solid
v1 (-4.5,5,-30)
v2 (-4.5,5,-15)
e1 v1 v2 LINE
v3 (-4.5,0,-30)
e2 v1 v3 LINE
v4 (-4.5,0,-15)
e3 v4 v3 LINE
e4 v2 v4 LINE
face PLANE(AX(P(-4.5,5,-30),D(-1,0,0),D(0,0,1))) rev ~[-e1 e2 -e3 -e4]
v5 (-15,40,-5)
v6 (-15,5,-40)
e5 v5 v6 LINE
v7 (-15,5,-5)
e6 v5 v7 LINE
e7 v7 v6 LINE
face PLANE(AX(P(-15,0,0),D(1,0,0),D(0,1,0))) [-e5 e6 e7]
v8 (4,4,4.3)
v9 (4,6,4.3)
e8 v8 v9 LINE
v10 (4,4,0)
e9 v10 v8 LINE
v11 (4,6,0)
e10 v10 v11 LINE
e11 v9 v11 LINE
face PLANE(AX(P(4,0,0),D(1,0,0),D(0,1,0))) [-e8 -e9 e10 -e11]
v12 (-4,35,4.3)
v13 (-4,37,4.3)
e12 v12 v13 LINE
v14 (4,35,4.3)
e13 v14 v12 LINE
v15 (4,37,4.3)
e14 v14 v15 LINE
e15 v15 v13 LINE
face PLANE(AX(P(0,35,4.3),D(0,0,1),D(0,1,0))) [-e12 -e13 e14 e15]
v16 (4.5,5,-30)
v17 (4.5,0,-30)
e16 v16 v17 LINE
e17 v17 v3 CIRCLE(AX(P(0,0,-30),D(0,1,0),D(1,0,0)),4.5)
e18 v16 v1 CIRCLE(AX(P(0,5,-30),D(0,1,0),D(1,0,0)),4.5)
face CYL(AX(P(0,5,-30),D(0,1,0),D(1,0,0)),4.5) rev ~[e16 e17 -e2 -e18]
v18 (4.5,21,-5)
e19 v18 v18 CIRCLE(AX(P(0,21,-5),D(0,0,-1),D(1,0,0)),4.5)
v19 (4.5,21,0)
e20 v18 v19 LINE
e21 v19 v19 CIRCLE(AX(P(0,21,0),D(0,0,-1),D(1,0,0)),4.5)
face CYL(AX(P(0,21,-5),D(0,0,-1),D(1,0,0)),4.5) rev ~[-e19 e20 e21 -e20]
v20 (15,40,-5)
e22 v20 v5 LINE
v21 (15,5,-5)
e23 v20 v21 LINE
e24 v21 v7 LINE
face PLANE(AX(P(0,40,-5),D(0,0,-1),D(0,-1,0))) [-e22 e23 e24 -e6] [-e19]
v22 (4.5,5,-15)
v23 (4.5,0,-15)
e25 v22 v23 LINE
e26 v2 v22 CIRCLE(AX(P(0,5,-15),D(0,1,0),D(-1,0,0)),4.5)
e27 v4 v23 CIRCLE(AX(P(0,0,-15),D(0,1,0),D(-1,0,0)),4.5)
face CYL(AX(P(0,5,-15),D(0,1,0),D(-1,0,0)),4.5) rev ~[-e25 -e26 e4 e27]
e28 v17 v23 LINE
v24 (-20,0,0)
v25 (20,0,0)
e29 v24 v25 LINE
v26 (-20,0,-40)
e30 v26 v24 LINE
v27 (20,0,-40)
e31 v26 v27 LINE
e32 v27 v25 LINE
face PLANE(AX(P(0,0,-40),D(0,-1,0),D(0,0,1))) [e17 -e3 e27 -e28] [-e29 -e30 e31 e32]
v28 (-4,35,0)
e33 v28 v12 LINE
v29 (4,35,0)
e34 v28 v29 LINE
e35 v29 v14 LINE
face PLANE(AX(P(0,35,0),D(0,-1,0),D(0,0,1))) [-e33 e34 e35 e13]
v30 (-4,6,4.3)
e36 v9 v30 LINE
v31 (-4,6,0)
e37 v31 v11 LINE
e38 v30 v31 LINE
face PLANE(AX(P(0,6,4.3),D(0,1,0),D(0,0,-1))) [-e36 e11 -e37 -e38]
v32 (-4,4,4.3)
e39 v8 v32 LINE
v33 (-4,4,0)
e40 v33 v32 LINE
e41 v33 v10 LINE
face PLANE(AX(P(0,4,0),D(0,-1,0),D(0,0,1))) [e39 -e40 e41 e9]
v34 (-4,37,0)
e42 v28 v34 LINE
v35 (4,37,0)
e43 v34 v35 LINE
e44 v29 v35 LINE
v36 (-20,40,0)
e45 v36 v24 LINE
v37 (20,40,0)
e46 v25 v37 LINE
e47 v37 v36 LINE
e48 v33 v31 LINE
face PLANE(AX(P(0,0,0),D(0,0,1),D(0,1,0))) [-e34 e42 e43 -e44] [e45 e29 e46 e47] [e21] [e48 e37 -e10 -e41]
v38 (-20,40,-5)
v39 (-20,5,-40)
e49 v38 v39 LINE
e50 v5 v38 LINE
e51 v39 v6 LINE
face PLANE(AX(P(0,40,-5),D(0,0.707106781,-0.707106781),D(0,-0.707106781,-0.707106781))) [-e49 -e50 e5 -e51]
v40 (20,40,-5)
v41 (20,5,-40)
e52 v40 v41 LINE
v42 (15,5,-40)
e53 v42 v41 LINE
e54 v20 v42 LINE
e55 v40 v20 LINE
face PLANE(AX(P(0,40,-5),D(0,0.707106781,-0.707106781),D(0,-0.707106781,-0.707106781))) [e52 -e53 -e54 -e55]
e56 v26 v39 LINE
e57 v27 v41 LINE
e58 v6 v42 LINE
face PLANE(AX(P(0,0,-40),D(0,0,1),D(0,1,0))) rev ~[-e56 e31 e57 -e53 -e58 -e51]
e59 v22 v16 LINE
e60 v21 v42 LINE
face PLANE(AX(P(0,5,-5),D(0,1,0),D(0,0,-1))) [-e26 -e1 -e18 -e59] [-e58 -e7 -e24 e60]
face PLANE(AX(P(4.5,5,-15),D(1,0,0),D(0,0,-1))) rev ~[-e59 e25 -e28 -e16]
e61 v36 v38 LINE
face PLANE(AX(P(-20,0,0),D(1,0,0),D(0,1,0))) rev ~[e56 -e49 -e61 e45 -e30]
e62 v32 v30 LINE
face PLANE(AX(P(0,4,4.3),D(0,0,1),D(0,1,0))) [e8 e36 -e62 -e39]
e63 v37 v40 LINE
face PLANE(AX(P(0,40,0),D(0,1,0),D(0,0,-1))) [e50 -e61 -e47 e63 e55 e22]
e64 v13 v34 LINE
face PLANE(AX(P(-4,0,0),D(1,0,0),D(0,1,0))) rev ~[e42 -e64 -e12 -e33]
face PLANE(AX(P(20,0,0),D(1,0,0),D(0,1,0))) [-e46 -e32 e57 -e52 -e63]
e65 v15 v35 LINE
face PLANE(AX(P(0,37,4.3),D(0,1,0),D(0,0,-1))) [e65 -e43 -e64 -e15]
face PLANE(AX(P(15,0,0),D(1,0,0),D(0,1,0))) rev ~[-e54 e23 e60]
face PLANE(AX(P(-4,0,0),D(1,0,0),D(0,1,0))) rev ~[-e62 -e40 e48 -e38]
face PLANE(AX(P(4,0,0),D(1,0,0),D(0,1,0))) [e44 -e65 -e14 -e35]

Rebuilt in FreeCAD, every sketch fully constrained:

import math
import FreeCAD as App
import Part
import Sketcher

V = App.Vector
Q = App.Units.Quantity

doc = App.newDocument("Part")
body = doc.addObject("PartDesign::Body", "Body")

sketch1 = doc.addObject("Sketcher::SketchObject", "Sketch")
body.addObject(sketch1)
sketch1.AttachmentSupport = (doc.YZ_Plane, [""])
sketch1.MapMode = "FlatFace"
sketch1.addGeometry([
    Part.LineSegment(V(0, 0, 0), V(0, -40, 0)),
    Part.LineSegment(V(0, -40, 0), V(5, -40, 0)),
    Part.LineSegment(V(5, -40, 0), V(40, -5, 0)),
    Part.LineSegment(V(40, -5, 0), V(40, 0, 0)),
    Part.LineSegment(V(40, 0, 0), V(0, 0, 0)),
], False)
sketch1.addConstraint([
    Sketcher.Constraint("Coincident", 0, 2, 1, 1),
    Sketcher.Constraint("Coincident", 1, 2, 2, 1),
    Sketcher.Constraint("Coincident", 2, 2, 3, 1),
    Sketcher.Constraint("Coincident", 3, 2, 4, 1),
    Sketcher.Constraint("Coincident", 4, 2, 0, 1),
    Sketcher.Constraint("Vertical", 0),
    Sketcher.Constraint("Horizontal", 1),
    Sketcher.Constraint("Vertical", 3),
    Sketcher.Constraint("Horizontal", 4),
    Sketcher.Constraint("Coincident", 4, 2, -1, 1),
    Sketcher.Constraint("Equal", 4, 0),
    Sketcher.Constraint("Equal", 1, 3),
    Sketcher.Constraint("DistanceX", 1, 1, 1, 2, Q("5 mm")),
    Sketcher.Constraint("DistanceX", 4, 2, 4, 1, Q("40 mm")),
])
pad1 = doc.addObject("PartDesign::Pad", "Pad")
body.addObject(pad1)
pad1.Profile = sketch1
pad1.Length = 40
pad1.Midplane = True

sketch2 = doc.addObject("Sketcher::SketchObject", "Sketch001")
body.addObject(sketch2)
sketch2.AttachmentSupport = (doc.YZ_Plane, [""])
sketch2.MapMode = "FlatFace"
sketch2.addGeometry([
    Part.LineSegment(V(5, -5, 0), V(5, -40, 0)),
    Part.LineSegment(V(5, -40, 0), V(40, -5, 0)),
    Part.LineSegment(V(40, -5, 0), V(5, -5, 0)),
], False)
sketch2.addConstraint([
    Sketcher.Constraint("Coincident", 0, 2, 1, 1),
    Sketcher.Constraint("Coincident", 1, 2, 2, 1),
    Sketcher.Constraint("Coincident", 2, 2, 0, 1),
    Sketcher.Constraint("Vertical", 0),
    Sketcher.Constraint("Horizontal", 2),
    Sketcher.Constraint("Equal", 2, 0),
    Sketcher.Constraint("DistanceX", -1, 1, 0, 2, Q("5 mm")),
    Sketcher.Constraint("DistanceY", 0, 2, -1, 1, Q("40 mm")),
    Sketcher.Constraint("DistanceX", -1, 1, 1, 2, Q("40 mm")),
])
pocket1 = doc.addObject("PartDesign::Pocket", "Pocket")
body.addObject(pocket1)
pocket1.Profile = sketch2
pocket1.Length = 30
pocket1.Midplane = True

sketch3 = doc.addObject("Sketcher::SketchObject", "Sketch002")
body.addObject(sketch3)
sketch3.AttachmentSupport = (doc.YZ_Plane, [""])
sketch3.MapMode = "FlatFace"
sketch3.addGeometry([
    Part.LineSegment(V(4, 4.3, 0), V(4, 0, 0)),
    Part.LineSegment(V(4, 0, 0), V(6, 0, 0)),
    Part.LineSegment(V(6, 0, 0), V(6, 4.3, 0)),
    Part.LineSegment(V(6, 4.3, 0), V(4, 4.3, 0)),
    Part.LineSegment(V(35, 4.3, 0), V(35, 0, 0)),
    Part.LineSegment(V(35, 0, 0), V(37, 0, 0)),
    Part.LineSegment(V(37, 0, 0), V(37, 4.3, 0)),
    Part.LineSegment(V(37, 4.3, 0), V(35, 4.3, 0)),
], False)
sketch3.addConstraint([
    Sketcher.Constraint("Coincident", 0, 2, 1, 1),
    Sketcher.Constraint("Coincident", 1, 2, 2, 1),
    Sketcher.Constraint("Coincident", 2, 2, 3, 1),
    Sketcher.Constraint("Coincident", 3, 2, 0, 1),
    Sketcher.Constraint("Coincident", 4, 2, 5, 1),
    Sketcher.Constraint("Coincident", 5, 2, 6, 1),
    Sketcher.Constraint("Coincident", 6, 2, 7, 1),
    Sketcher.Constraint("Coincident", 7, 2, 4, 1),
    Sketcher.Constraint("Vertical", 0),
    Sketcher.Constraint("Horizontal", 1),
    Sketcher.Constraint("Vertical", 2),
    Sketcher.Constraint("Horizontal", 3),
    Sketcher.Constraint("Vertical", 4),
    Sketcher.Constraint("Horizontal", 5),
    Sketcher.Constraint("Vertical", 6),
    Sketcher.Constraint("Horizontal", 7),
    Sketcher.Constraint("PointOnObject", 0, 2, -1),
    Sketcher.Constraint("PointOnObject", 4, 2, -1),
    Sketcher.Constraint("Horizontal", 3, 2, 6, 2),
    Sketcher.Constraint("Equal", 3, 5),
    Sketcher.Constraint("DistanceX", 1, 1, 1, 2, Q("2 mm")),
    Sketcher.Constraint("DistanceY", 0, 2, 0, 1, Q("4.3 mm")),
    Sketcher.Constraint("DistanceX", -1, 1, 0, 2, Q("4 mm")),
    Sketcher.Constraint("DistanceX", -1, 1, 4, 2, Q("35 mm")),
])
pad2 = doc.addObject("PartDesign::Pad", "Pad001")
body.addObject(pad2)
pad2.Profile = sketch3
pad2.Length = 8
pad2.Midplane = True

sketch4 = doc.addObject("Sketcher::SketchObject", "Sketch003")
body.addObject(sketch4)
sketch4.AttachmentSupport = (doc.XZ_Plane, [""])
sketch4.MapMode = "FlatFace"
sketch4.AttachmentOffset = App.Placement(V(0, 0, -5), App.Rotation())
sketch4.addGeometry([
    Part.ArcOfCircle(Part.Circle(V(0, -15, 0), V(0, 0, 1), 4.5), math.radians(0), math.radians(180)),
    Part.LineSegment(V(4.5, -15, 0), V(4.5, -30, 0)),
    Part.ArcOfCircle(Part.Circle(V(0, -30, 0), V(0, 0, 1), 4.5), math.radians(180), math.radians(360)),
    Part.LineSegment(V(-4.5, -30, 0), V(-4.5, -15, 0)),
], False)
sketch4.addConstraint([
    Sketcher.Constraint("Tangent", 0, 1, 1, 1),
    Sketcher.Constraint("Tangent", 1, 2, 2, 2),
    Sketcher.Constraint("Tangent", 2, 1, 3, 1),
    Sketcher.Constraint("Tangent", 3, 2, 0, 2),
    Sketcher.Constraint("Vertical", 1),
    Sketcher.Constraint("Vertical", 3),
    Sketcher.Constraint("PointOnObject", 0, 3, -2),
    Sketcher.Constraint("Radius", 0, Q("4.5 mm")),
    Sketcher.Constraint("DistanceY", 1, 2, 1, 1, Q("15 mm")),
    Sketcher.Constraint("DistanceY", 0, 3, -1, 1, Q("15 mm")),
])
pocket2 = doc.addObject("PartDesign::Pocket", "Pocket001")
body.addObject(pocket2)
pocket2.Profile = sketch4
pocket2.Type = "ThroughAll"
pocket2.Reversed = True

sketch5 = doc.addObject("Sketcher::SketchObject", "Sketch004")
body.addObject(sketch5)
sketch5.AttachmentSupport = (doc.XY_Plane, [""])
sketch5.MapMode = "FlatFace"
sketch5.AttachmentOffset = App.Placement(V(0, 0, -5), App.Rotation())
sketch5.addGeometry(Part.Circle(V(0, 21, 0), V(0, 0, 1), 4.5), False)
sketch5.addConstraint([
    Sketcher.Constraint("PointOnObject", 0, 3, -2),
    Sketcher.Constraint("Diameter", 0, Q("9 mm")),
    Sketcher.Constraint("DistanceY", -1, 1, 0, 3, Q("21 mm")),
])
pocket3 = doc.addObject("PartDesign::Pocket", "Pocket002")
body.addObject(pocket3)
pocket3.Profile = sketch5
pocket3.Type = "ThroughAll"
pocket3.Reversed = True

doc.recompute()
